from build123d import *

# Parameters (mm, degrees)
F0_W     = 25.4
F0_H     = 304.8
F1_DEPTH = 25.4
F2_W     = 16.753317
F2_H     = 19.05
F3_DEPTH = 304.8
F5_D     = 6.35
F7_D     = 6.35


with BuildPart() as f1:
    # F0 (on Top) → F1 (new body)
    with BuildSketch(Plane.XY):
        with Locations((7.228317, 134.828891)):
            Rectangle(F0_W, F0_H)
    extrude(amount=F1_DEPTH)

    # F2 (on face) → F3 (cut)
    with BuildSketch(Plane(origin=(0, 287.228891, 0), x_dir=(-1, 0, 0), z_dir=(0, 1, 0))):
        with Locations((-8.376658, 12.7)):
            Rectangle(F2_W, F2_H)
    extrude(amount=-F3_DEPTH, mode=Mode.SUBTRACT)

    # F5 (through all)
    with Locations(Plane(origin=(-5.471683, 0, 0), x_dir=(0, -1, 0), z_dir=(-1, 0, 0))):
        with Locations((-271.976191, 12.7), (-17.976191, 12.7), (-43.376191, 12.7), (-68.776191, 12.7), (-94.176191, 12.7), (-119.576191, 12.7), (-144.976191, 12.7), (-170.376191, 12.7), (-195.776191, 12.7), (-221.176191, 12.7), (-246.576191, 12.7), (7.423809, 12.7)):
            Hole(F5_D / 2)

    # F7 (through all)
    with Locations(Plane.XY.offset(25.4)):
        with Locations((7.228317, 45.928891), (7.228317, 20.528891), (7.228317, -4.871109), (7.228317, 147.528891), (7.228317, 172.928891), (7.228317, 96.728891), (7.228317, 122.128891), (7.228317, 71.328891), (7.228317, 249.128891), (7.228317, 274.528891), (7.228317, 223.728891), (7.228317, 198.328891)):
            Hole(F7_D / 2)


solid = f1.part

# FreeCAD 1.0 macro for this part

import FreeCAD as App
import Part
import Sketcher

V = App.Vector
Q = App.Units.Quantity

doc = App.newDocument("Part")
body = doc.addObject("PartDesign::Body", "Body")

# Sketch on XY plane
sketch1 = doc.addObject("Sketcher::SketchObject", "Sketch")
body.addObject(sketch1)
sketch1.AttachmentSupport = (doc.XY_Plane, [""])
sketch1.MapMode = "FlatFace"
sketch1.addGeometry([
    Part.LineSegment(V(-5, 287, 0), V(-5, -18, 0)),
    Part.LineSegment(V(-5, -18, 0), V(20, -18, 0)),
    Part.LineSegment(V(20, -18, 0), V(20, 287, 0)),
    Part.LineSegment(V(20, 287, 0), V(-5, 287, 0)),
], False)
sketch1.addConstraint([
    Sketcher.Constraint("Coincident", 0, 2, 1, 1),
    Sketcher.Constraint("Coincident", 1, 2, 2, 1),
    Sketcher.Constraint("Coincident", 2, 2, 3, 1),
    Sketcher.Constraint("Coincident", 3, 2, 0, 1),
    Sketcher.Constraint("Vertical", 0),
    Sketcher.Constraint("Horizontal", 1),
    Sketcher.Constraint("Vertical", 2),
    Sketcher.Constraint("Horizontal", 3),
    Sketcher.Constraint("DistanceX", 1, 1, 1, 2, Q("1 in")),
    Sketcher.Constraint("DistanceY", 0, 2, 0, 1, Q("12 in")),
    Sketcher.Constraint("DistanceY", 0, 2, -1, 1, 17.571109),
    Sketcher.Constraint("DistanceX", 0, 2, -1, 1, 5.471683),
])
pad1 = doc.addObject("PartDesign::Pad", "Pad")
body.addObject(pad1)
pad1.Profile = sketch1
pad1.Length = Q("1 in")

# Sketch on XZ plane
sketch2 = doc.addObject("Sketcher::SketchObject", "Sketch001")
body.addObject(sketch2)
sketch2.AttachmentSupport = (doc.XZ_Plane, [""])
sketch2.MapMode = "FlatFace"
sketch2.AttachmentOffset = App.Placement(V(0, 0, -287.228891), App.Rotation())
sketch2.addGeometry([
    Part.LineSegment(V(17, 22, 0), V(17, 3, 0)),
    Part.LineSegment(V(17, 3, 0), V(0, 3, 0)),
    Part.LineSegment(V(0, 3, 0), V(0, 22, 0)),
    Part.LineSegment(V(0, 22, 0), V(17, 22, 0)),
], False)
sketch2.addConstraint([
    Sketcher.Constraint("Coincident", 0, 2, 1, 1),
    Sketcher.Constraint("Coincident", 1, 2, 2, 1),
    Sketcher.Constraint("Coincident", 2, 2, 3, 1),
    Sketcher.Constraint("Coincident", 3, 2, 0, 1),
    Sketcher.Constraint("Vertical", 0),
    Sketcher.Constraint("Horizontal", 1),
    Sketcher.Constraint("Vertical", 2),
    Sketcher.Constraint("Horizontal", 3),
    Sketcher.Constraint("PointOnObject", 1, 2, -2),
    Sketcher.Constraint("DistanceY", 0, 2, 0, 1, Q("0.75 in")),
    Sketcher.Constraint("DistanceY", -1, 1, 0, 2, Q("0.125 in")),
    Sketcher.Constraint("DistanceX", 1, 2, 1, 1, 16.753317),
])
pocket1 = doc.addObject("PartDesign::Pocket", "Pocket")
body.addObject(pocket1)
pocket1.Profile = sketch2
pocket1.Length = Q("12 in")
pocket1.Reversed = True

# Sketch on YZ plane
sketch3 = doc.addObject("Sketcher::SketchObject", "Sketch002")
body.addObject(sketch3)
sketch3.AttachmentSupport = (doc.YZ_Plane, [""])
sketch3.MapMode = "FlatFace"
sketch3.AttachmentOffset = App.Placement(V(0, 0, -5.471683), App.Rotation())
sketch3.addGeometry([
    Part.Circle(V(272, 12.7, 0), V(0, 0, 1), 3.2),  # 0
    Part.Circle(V(18, 12.7, 0), V(0, 0, 1), 3.2),  # 1
    Part.Circle(V(43.4, 12.7, 0), V(0, 0, 1), 3.2),  # 2
    Part.Circle(V(68.8, 12.7, 0), V(0, 0, 1), 3.2),  # 3
    Part.Circle(V(94.2, 12.7, 0), V(0, 0, 1), 3.2),  # 4
    Part.Circle(V(119.6, 12.7, 0), V(0, 0, 1), 3.2),  # 5
    Part.Circle(V(145, 12.7, 0), V(0, 0, 1), 3.2),  # 6
    Part.Circle(V(170.4, 12.7, 0), V(0, 0, 1), 3.2),  # 7
    Part.Circle(V(195.8, 12.7, 0), V(0, 0, 1), 3.2),  # 8
    Part.Circle(V(221.2, 12.7, 0), V(0, 0, 1), 3.2),  # 9
    Part.Circle(V(246.6, 12.7, 0), V(0, 0, 1), 3.2),  # 10
    Part.Circle(V(-7.4, 12.7, 0), V(0, 0, 1), 3.2),  # 11
], False)
sketch3.addConstraint([
    Sketcher.Constraint("Equal", 0, 1),
    Sketcher.Constraint("Equal", 1, 2),
    Sketcher.Constraint("Equal", 2, 3),
    Sketcher.Constraint("Equal", 3, 4),
    Sketcher.Constraint("Equal", 4, 5),
    Sketcher.Constraint("Equal", 5, 6),
    Sketcher.Constraint("Equal", 6, 7),
    Sketcher.Constraint("Equal", 7, 8),
    Sketcher.Constraint("Equal", 8, 9),
    Sketcher.Constraint("Equal", 9, 10),
    Sketcher.Constraint("Equal", 10, 11),
    Sketcher.Constraint("Horizontal", 0, 3, 1, 3),
    Sketcher.Constraint("Horizontal", 1, 3, 2, 3),
    Sketcher.Constraint("Horizontal", 2, 3, 3, 3),
    Sketcher.Constraint("Horizontal", 3, 3, 4, 3),
    Sketcher.Constraint("Horizontal", 4, 3, 5, 3),
    Sketcher.Constraint("Horizontal", 5, 3, 6, 3),
    Sketcher.Constraint("Horizontal", 6, 3, 7, 3),
    Sketcher.Constraint("Horizontal", 7, 3, 8, 3),
    Sketcher.Constraint("Horizontal", 8, 3, 9, 3),
    Sketcher.Constraint("Horizontal", 9, 3, 10, 3),
    Sketcher.Constraint("Horizontal", 10, 3, 11, 3),
    Sketcher.Constraint("Diameter", 0, Q("0.25 in")),
    Sketcher.Constraint("DistanceX", 1, 3, 0, 3, Q("10 in")),
    Sketcher.Constraint("DistanceX", 1, 3, 2, 3, Q("1 in")),
    Sketcher.Constraint("DistanceX", 2, 3, 3, 3, Q("1 in")),
    Sketcher.Constraint("DistanceX", 3, 3, 4, 3, Q("1 in")),
    Sketcher.Constraint("DistanceX", 4, 3, 5, 3, Q("1 in")),
    Sketcher.Constraint("DistanceX", 5, 3, 6, 3, Q("1 in")),
    Sketcher.Constraint("DistanceX", 6, 3, 7, 3, Q("1 in")),
    Sketcher.Constraint("DistanceX", 7, 3, 8, 3, Q("1 in")),
    Sketcher.Constraint("DistanceX", 8, 3, 9, 3, Q("1 in")),
    Sketcher.Constraint("DistanceX", 10, 3, 0, 3, Q("1 in")),
    Sketcher.Constraint("DistanceX", 11, 3, 1, 3, Q("1 in")),
    Sketcher.Constraint("DistanceY", -1, 1, 0, 3, Q("0.5 in")),
    Sketcher.Constraint("DistanceX", -1, 1, 0, 3, 271.976191),
])
doc.recompute()
hole = doc.addObject("PartDesign::Hole", "Hole")
body.addObject(hole)
hole.Profile = sketch3
hole.ThreadType = "None"
hole.Diameter = Q("0.25 in")
hole.DepthType = "ThroughAll"
hole.Reversed = True

# Sketch on XY plane
sketch4 = doc.addObject("Sketcher::SketchObject", "Sketch003")
body.addObject(sketch4)
sketch4.AttachmentSupport = (doc.XY_Plane, [""])
sketch4.MapMode = "FlatFace"
sketch4.AttachmentOffset = App.Placement(V(0, 0, 1 * 25.4), App.Rotation())
sketch4.addGeometry([
    Part.Circle(V(7.2, 45.9, 0), V(0, 0, 1), 3.2),  # 0
    Part.Circle(V(7.2, 20.5, 0), V(0, 0, 1), 3.2),  # 1
    Part.Circle(V(7.2, -4.9, 0), V(0, 0, 1), 3.2),  # 2
    Part.Circle(V(7.2, 147.5, 0), V(0, 0, 1), 3.2),  # 3
    Part.Circle(V(7.2, 172.9, 0), V(0, 0, 1), 3.2),  # 4
    Part.Circle(V(7.2, 96.7, 0), V(0, 0, 1), 3.2),  # 5
    Part.Circle(V(7.2, 122.1, 0), V(0, 0, 1), 3.2),  # 6
    Part.Circle(V(7.2, 71.3, 0), V(0, 0, 1), 3.2),  # 7
    Part.Circle(V(7.2, 249.1, 0), V(0, 0, 1), 3.2),  # 8
    Part.Circle(V(7.2, 274.5, 0), V(0, 0, 1), 3.2),  # 9
    Part.Circle(V(7.2, 223.7, 0), V(0, 0, 1), 3.2),  # 10
    Part.Circle(V(7.2, 198.3, 0), V(0, 0, 1), 3.2),  # 11
], False)
sketch4.addConstraint([
    Sketcher.Constraint("Equal", 0, 1),
    Sketcher.Constraint("Equal", 1, 2),
    Sketcher.Constraint("Equal", 2, 3),
    Sketcher.Constraint("Equal", 3, 4),
    Sketcher.Constraint("Equal", 4, 5),
    Sketcher.Constraint("Equal", 5, 6),
    Sketcher.Constraint("Equal", 6, 7),
    Sketcher.Constraint("Equal", 7, 8),
    Sketcher.Constraint("Equal", 8, 9),
    Sketcher.Constraint("Equal", 9, 10),
    Sketcher.Constraint("Equal", 10, 11),
    Sketcher.Constraint("Vertical", 0, 3, 1, 3),
    Sketcher.Constraint("Vertical", 1, 3, 2, 3),
    Sketcher.Constraint("Vertical", 2, 3, 3, 3),
    Sketcher.Constraint("Vertical", 3, 3, 4, 3),
    Sketcher.Constraint("Vertical", 4, 3, 5, 3),
    Sketcher.Constraint("Vertical", 5, 3, 6, 3),
    Sketcher.Constraint("Vertical", 6, 3, 7, 3),
    Sketcher.Constraint("Vertical", 7, 3, 8, 3),
    Sketcher.Constraint("Vertical", 8, 3, 9, 3),
    Sketcher.Constraint("Vertical", 9, 3, 10, 3),
    Sketcher.Constraint("Vertical", 10, 3, 11, 3),
    Sketcher.Constraint("Diameter", 0, Q("0.25 in")),
    Sketcher.Constraint("DistanceY", 1, 3, 0, 3, Q("1 in")),
    Sketcher.Constraint("DistanceY", 2, 3, 1, 3, Q("1 in")),
    Sketcher.Constraint("DistanceY", 0, 3, 3, 3, Q("4 in")),
    Sketcher.Constraint("DistanceY", 3, 3, 4, 3, Q("1 in")),
    Sketcher.Constraint("DistanceY", 5, 3, 3, 3, Q("2 in")),
    Sketcher.Constraint("DistanceY", 6, 3, 3, 3, Q("1 in")),
    Sketcher.Constraint("DistanceY", 0, 3, 7, 3, Q("1 in")),
    Sketcher.Constraint("DistanceY", 4, 3, 8, 3, Q("3 in")),
    Sketcher.Constraint("DistanceY", 8, 3, 9, 3, Q("1 in")),
    Sketcher.Constraint("DistanceY", 10, 3, 8, 3, Q("1 in")),
    Sketcher.Constraint("DistanceY", 4, 3, 11, 3, Q("1 in")),
    Sketcher.Constraint("DistanceY", -1, 1, 0, 3, 45.928891),
    Sketcher.Constraint("DistanceX", -1, 1, 0, 3, 7.228317),
])
doc.recompute()
hole2 = doc.addObject("PartDesign::Hole", "Hole001")
body.addObject(hole2)
hole2.Profile = sketch4
hole2.ThreadType = "None"
hole2.Diameter = Q("0.25 in")
hole2.DepthType = "ThroughAll"

doc.recompute()
